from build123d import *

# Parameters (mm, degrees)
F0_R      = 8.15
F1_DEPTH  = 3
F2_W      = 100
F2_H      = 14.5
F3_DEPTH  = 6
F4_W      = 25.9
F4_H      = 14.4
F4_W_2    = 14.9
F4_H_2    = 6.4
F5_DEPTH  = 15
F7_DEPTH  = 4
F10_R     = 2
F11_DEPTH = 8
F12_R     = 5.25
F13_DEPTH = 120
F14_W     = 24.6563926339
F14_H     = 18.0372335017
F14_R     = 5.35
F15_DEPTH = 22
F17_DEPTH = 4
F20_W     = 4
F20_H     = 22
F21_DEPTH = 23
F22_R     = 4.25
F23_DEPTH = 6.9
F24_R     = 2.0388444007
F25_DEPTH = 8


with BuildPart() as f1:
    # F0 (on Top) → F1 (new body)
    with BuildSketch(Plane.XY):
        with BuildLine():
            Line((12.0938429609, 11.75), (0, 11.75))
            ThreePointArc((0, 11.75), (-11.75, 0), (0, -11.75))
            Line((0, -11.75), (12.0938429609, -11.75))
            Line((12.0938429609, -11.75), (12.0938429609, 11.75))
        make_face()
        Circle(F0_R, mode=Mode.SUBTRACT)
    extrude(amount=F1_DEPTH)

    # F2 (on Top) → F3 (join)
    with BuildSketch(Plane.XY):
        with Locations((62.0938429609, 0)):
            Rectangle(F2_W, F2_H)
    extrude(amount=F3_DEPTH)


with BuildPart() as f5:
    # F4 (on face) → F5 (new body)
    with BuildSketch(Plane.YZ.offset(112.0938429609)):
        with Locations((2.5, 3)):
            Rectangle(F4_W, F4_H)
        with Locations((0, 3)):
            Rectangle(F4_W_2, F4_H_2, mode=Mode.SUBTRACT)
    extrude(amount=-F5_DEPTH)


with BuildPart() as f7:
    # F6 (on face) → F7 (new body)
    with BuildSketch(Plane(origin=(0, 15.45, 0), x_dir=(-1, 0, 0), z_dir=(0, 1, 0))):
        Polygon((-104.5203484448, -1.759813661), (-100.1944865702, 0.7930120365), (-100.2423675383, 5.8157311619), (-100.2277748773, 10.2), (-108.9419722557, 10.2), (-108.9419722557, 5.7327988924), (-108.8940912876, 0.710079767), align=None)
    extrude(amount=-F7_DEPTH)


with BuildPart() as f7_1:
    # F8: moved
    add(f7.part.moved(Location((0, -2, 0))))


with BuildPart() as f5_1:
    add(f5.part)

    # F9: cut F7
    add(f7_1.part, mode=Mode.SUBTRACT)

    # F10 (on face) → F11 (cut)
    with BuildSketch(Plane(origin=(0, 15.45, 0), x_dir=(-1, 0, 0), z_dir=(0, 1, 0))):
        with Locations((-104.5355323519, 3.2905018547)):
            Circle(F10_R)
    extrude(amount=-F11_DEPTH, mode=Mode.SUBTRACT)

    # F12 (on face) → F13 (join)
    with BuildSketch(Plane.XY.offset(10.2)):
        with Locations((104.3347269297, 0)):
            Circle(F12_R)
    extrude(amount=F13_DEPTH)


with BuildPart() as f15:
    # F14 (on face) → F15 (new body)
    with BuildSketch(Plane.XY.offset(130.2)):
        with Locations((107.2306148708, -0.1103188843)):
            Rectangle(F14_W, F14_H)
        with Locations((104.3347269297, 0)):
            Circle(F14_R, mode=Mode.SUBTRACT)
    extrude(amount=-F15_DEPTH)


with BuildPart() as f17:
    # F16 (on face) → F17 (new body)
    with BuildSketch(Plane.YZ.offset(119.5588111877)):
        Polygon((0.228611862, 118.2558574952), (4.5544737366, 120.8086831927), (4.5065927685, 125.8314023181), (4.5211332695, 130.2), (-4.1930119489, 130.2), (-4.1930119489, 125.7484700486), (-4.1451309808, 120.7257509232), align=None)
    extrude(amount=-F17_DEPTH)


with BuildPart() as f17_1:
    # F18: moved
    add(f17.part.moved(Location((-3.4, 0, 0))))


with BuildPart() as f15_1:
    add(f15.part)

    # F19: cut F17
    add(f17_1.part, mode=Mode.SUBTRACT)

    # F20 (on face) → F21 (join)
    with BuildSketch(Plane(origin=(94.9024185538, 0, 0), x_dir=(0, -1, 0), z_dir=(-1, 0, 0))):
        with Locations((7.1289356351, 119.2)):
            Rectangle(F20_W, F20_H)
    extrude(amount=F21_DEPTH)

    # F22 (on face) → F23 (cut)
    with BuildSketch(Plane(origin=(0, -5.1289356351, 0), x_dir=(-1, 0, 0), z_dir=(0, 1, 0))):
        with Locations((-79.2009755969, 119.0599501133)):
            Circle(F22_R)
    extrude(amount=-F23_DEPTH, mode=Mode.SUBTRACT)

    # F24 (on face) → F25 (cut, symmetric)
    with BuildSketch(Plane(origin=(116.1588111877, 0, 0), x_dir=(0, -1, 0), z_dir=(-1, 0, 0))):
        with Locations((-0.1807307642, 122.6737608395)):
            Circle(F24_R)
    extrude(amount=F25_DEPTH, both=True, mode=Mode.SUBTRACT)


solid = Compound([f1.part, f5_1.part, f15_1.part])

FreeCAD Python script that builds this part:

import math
import FreeCAD as App
import Part
import Sketcher

V = App.Vector


def add_polygon(sketch, points):
    """Adds a closed chain of lines whose ends are joined by coincident constraints."""
    first, n = sketch.GeometryCount, len(points)
    for a, b in zip(points, points[1:] + points[:1]):
        sketch.addGeometry(Part.LineSegment(App.Vector(*a, 0), App.Vector(*b, 0)), False)
    for i in range(n):
        sketch.addConstraint(Sketcher.Constraint("Coincident", first + i, 2, first + (i + 1) % n, 1))

doc = App.newDocument("Part")
body = doc.addObject("PartDesign::Body", "Body")

sketch1 = body.newObject("Sketcher::SketchObject", "Sketch")
sketch1.AttachmentSupport = (doc.getObject("XY_Plane"), [""])
sketch1.MapMode = "FlatFace"
sketch1.addGeometry([
    Part.LineSegment(V(12, 12, 0), V(0, 12, 0)),
    Part.ArcOfCircle(Part.Circle(V(0, 0, 0), V(0, 0, 1), 12), math.radians(90), math.radians(270)),
    Part.LineSegment(V(0, -12, 0), V(12, -12, 0)),
    Part.LineSegment(V(12, -12, 0), V(12, 12, 0)),
    Part.Circle(V(0, 0, 0), V(0, 0, 1), 8),
], False)
sketch1.addConstraint([
    Sketcher.Constraint("Tangent", 0, 2, 1, 1),
    Sketcher.Constraint("Tangent", 1, 2, 2, 1),
    Sketcher.Constraint("Coincident", 2, 2, 3, 1),
    Sketcher.Constraint("Coincident", 3, 2, 0, 1),
    Sketcher.Constraint("Horizontal", 0),
    Sketcher.Constraint("Horizontal", 2),
    Sketcher.Constraint("Vertical", 3),
    Sketcher.Constraint("Coincident", 1, 3, -1, 1),
    Sketcher.Constraint("Coincident", 4, 3, -1, 1),
    Sketcher.Constraint("Diameter", 4, 16.3),
    Sketcher.Constraint("Radius", 1, 11.75),
    Sketcher.Constraint("DistanceX", 0, 2, 0, 1, 12.093843),
])
pad1 = body.newObject("PartDesign::Pad", "Pad")
pad1.Profile = sketch1
pad1.Length = 3

sketch2 = body.newObject("Sketcher::SketchObject", "Sketch001")
sketch2.AttachmentSupport = (doc.getObject("XY_Plane"), [""])
sketch2.MapMode = "FlatFace"
add_polygon(sketch2, [(12, 7), (12, -7), (112, -7), (112, 7)])
sketch2.addConstraint([
    Sketcher.Constraint("Vertical", 0),
    Sketcher.Constraint("Horizontal", 1),
    Sketcher.Constraint("Vertical", 2),
    Sketcher.Constraint("Horizontal", 3),
    Sketcher.Constraint("DistanceX", 1, 1, 1, 2, 100.0),
    Sketcher.Constraint("DistanceY", 0, 2, 0, 1, 14.5),
    Sketcher.Constraint("DistanceY", 0, 2, -1, 1, 7.25),
    Sketcher.Constraint("DistanceX", -1, 1, 0, 2, 12.093843),
])
pad2 = body.newObject("PartDesign::Pad", "Pad001")
pad2.Profile = sketch2
pad2.Length = 6
body2 = doc.addObject("PartDesign::Body", "Body001")

sketch3 = body2.newObject("Sketcher::SketchObject", "Sketch002")
sketch3.AttachmentSupport = (doc.getObject("YZ_Plane001"), [""])
sketch3.MapMode = "FlatFace"
sketch3.AttachmentOffset = App.Placement(V(0, 0, 112.093843), App.Rotation())
add_polygon(sketch3, [(-10, 10), (-10, -4), (15, -4), (15, 10)])
add_polygon(sketch3, [(7, 0), (-7, 0), (-7, 6), (7, 6)])
sketch3.addConstraint([
    Sketcher.Constraint("Vertical", 0),
    Sketcher.Constraint("Horizontal", 1),
    Sketcher.Constraint("Vertical", 2),
    Sketcher.Constraint("Horizontal", 3),
    Sketcher.Constraint("Horizontal", 4),
    Sketcher.Constraint("Vertical", 5),
    Sketcher.Constraint("Horizontal", 6),
    Sketcher.Constraint("Vertical", 7),
    Sketcher.Constraint("DistanceX", 1, 1, 1, 2, 25.9),
    Sketcher.Constraint("DistanceX", 4, 2, 4, 1, 14.9),
    Sketcher.Constraint("DistanceY", 0, 2, 0, 1, 14.4),
    Sketcher.Constraint("DistanceY", 5, 1, 5, 2, 6.4),
    Sketcher.Constraint("DistanceX", 0, 2, 4, 2, 3.0),
    Sketcher.Constraint("DistanceY", 0, 2, 4, 2, 4.0),
    Sketcher.Constraint("DistanceY", 0, 2, -1, 1, 4.2),
    Sketcher.Constraint("DistanceX", 0, 2, -1, 1, 10.45),
])
pad3 = body2.newObject("PartDesign::Pad", "Pad002")
pad3.Profile = sketch3
pad3.Length = 15
pad3.Reversed = True
body3 = doc.addObject("PartDesign::Body", "Body002")

sketch4 = body3.newObject("Sketcher::SketchObject", "Sketch003")
sketch4.AttachmentSupport = (doc.getObject("XZ_Plane002"), [""])
sketch4.MapMode = "FlatFace"
sketch4.AttachmentOffset = App.Placement(V(0, 0, -15.45), App.Rotation())
add_polygon(sketch4, [(104.5, -1.8), (100.2, 0.8), (100.2, 5.8), (100.2, 10.2), (108.9, 10.2), (108.9, 5.7), (108.9, 0.7)])
sketch4.addConstraint([
    Sketcher.Constraint("Horizontal", 3),
    Sketcher.Constraint("Vertical", 4),
    Sketcher.Constraint("Parallel", 1, 5),
    Sketcher.Constraint("Equal", 0, 1),
    Sketcher.Constraint("Equal", 1, 5),
    Sketcher.Constraint("Equal", 5, 6),
    Sketcher.Constraint("DistanceY", -1, 1, 2, 2, 10.2),
    Sketcher.Constraint("DistanceY", 4, 2, 4, 1, 4.467201),
    Sketcher.Constraint("DistanceX", 3, 1, 3, 2, 8.714197),
    Sketcher.Constraint("DistanceY", -1, 1, 1, 2, 5.815731),
    Sketcher.Constraint("DistanceX", -1, 1, 5, 2, 108.894091),
    Sketcher.Constraint("DistanceY", -1, 1, 5, 2, 0.71008),
    Sketcher.Constraint("DistanceX", -1, 1, 6, 2, 104.520348),
    Sketcher.Constraint("DistanceX", 0, 2, 1, 2, 0.047881),
])
pad4 = body3.newObject("PartDesign::Pad", "Pad003")
pad4.Profile = sketch4
pad4.Length = 4
body4 = doc.addObject("PartDesign::Body", "Body003")
doc.recompute()

body3.Placement = App.Placement(V(0, -2, 0), App.Rotation(V(0, 0, 1), 0))
boolean = body4.newObject("PartDesign::Boolean", "Boolean")
boolean.Type = "Fuse"
boolean.addObjects([body3])
doc.recompute()

boolean2 = body2.newObject("PartDesign::Boolean", "Boolean001")
boolean2.Type = "Cut"
boolean2.addObjects([body4])

sketch5 = body2.newObject("Sketcher::SketchObject", "Sketch004")
sketch5.AttachmentSupport = (doc.getObject("XZ_Plane001"), [""])
sketch5.MapMode = "FlatFace"
sketch5.AttachmentOffset = App.Placement(V(0, 0, -15.45), App.Rotation())
sketch5.addGeometry(Part.Circle(V(104.5, 3.3, 0), V(0, 0, 1), 2), False)
sketch5.addConstraint([
    Sketcher.Constraint("Diameter", 0, 4.0),
    Sketcher.Constraint("DistanceY", -1, 1, 0, 3, 3.290502),
    Sketcher.Constraint("DistanceX", -1, 1, 0, 3, 104.535532),
])
pocket1 = body2.newObject("PartDesign::Pocket", "Pocket")
pocket1.Profile = sketch5
pocket1.Length = 8
pocket1.Reversed = True

sketch6 = body2.newObject("Sketcher::SketchObject", "Sketch005")
sketch6.AttachmentSupport = (doc.getObject("XY_Plane001"), [""])
sketch6.MapMode = "FlatFace"
sketch6.AttachmentOffset = App.Placement(V(0, 0, 10.2), App.Rotation())
sketch6.addGeometry(Part.Circle(V(104, 0, 0), V(0, 0, 1), 5), False)
sketch6.addConstraint([
    Sketcher.Constraint("PointOnObject", 0, 3, -1),
    Sketcher.Constraint("Diameter", 0, 10.5),
    Sketcher.Constraint("DistanceX", -1, 1, 0, 3, 104.334727),
])
pad5 = body2.newObject("PartDesign::Pad", "Pad004")
pad5.Profile = sketch6
pad5.Length = 120
body5 = doc.addObject("PartDesign::Body", "Body004")

sketch7 = body5.newObject("Sketcher::SketchObject", "Sketch006")
sketch7.AttachmentSupport = (doc.getObject("XY_Plane004"), [""])
sketch7.MapMode = "FlatFace"
sketch7.AttachmentOffset = App.Placement(V(0, 0, 130.2), App.Rotation())
add_polygon(sketch7, [(95, 9), (95, -9), (120, -9), (120, 9)])
sketch7.addGeometry(Part.Circle(V(104, 0, 0), V(0, 0, 1), 5), False)
sketch7.addConstraint([
    Sketcher.Constraint("Vertical", 0),
    Sketcher.Constraint("Horizontal", 1),
    Sketcher.Constraint("Vertical", 2),
    Sketcher.Constraint("Horizontal", 3),
    Sketcher.Constraint("PointOnObject", 4, 3, -1),
    Sketcher.Constraint("Diameter", 4, 10.7),
    Sketcher.Constraint("DistanceX", 1, 1, 1, 2, 24.656393),
    Sketcher.Constraint("DistanceY", 0, 2, 0, 1, 18.037234),
    Sketcher.Constraint("DistanceX", -1, 1, 0, 2, 94.902419),
    Sketcher.Constraint("DistanceX", 0, 2, 4, 3, 9.432308),
    Sketcher.Constraint("DistanceY", 0, 2, -1, 1, 9.128936),
])
pad6 = body5.newObject("PartDesign::Pad", "Pad005")
pad6.Profile = sketch7
pad6.Length = 22
pad6.Reversed = True
body6 = doc.addObject("PartDesign::Body", "Body005")

sketch8 = body6.newObject("Sketcher::SketchObject", "Sketch007")
sketch8.AttachmentSupport = (doc.getObject("YZ_Plane005"), [""])
sketch8.MapMode = "FlatFace"
sketch8.AttachmentOffset = App.Placement(V(0, 0, 119.558811), App.Rotation())
add_polygon(sketch8, [(0.2, 118.3), (4.6, 120.8), (4.5, 125.8), (4.5, 130.2), (-4.2, 130.2), (-4.2, 125.7), (-4.1, 120.7)])
sketch8.addConstraint([
    Sketcher.Constraint("Horizontal", 3),
    Sketcher.Constraint("Vertical", 4),
    Sketcher.Constraint("Parallel", 1, 5),
    Sketcher.Constraint("Equal", 0, 1),
    Sketcher.Constraint("Equal", 1, 5),
    Sketcher.Constraint("Equal", 5, 6),
    Sketcher.Constraint("DistanceY", -1, 1, 2, 2, 130.2),
    Sketcher.Constraint("DistanceY", 4, 2, 4, 1, 4.45153),
    Sketcher.Constraint("Distance", 2, 4.368622),
    Sketcher.Constraint("DistanceX", 3, 2, 3, 1, 8.714145),
    Sketcher.Constraint("DistanceX", 3, 2, -1, 1, 4.193012),
    Sketcher.Constraint("DistanceX", 5, 2, -1, 1, 4.145131),
    Sketcher.Constraint("DistanceY", -1, 1, 5, 2, 120.725751),
    Sketcher.Constraint("DistanceX", -1, 1, 6, 2, 0.228612),
])
pad7 = body6.newObject("PartDesign::Pad", "Pad006")
pad7.Profile = sketch8
pad7.Length = 4
pad7.Reversed = True
body7 = doc.addObject("PartDesign::Body", "Body006")
doc.recompute()

body6.Placement = App.Placement(V(-3.4, 0, 0), App.Rotation(V(0, 0, 1), 0))
boolean3 = body7.newObject("PartDesign::Boolean", "Boolean002")
boolean3.Type = "Fuse"
boolean3.addObjects([body6])
doc.recompute()

boolean4 = body5.newObject("PartDesign::Boolean", "Boolean003")
boolean4.Type = "Cut"
boolean4.addObjects([body7])

sketch9 = body5.newObject("Sketcher::SketchObject", "Sketch008")
sketch9.AttachmentSupport = (doc.getObject("YZ_Plane004"), [""])
sketch9.MapMode = "FlatFace"
sketch9.AttachmentOffset = App.Placement(V(0, 0, 94.902419), App.Rotation())
add_polygon(sketch9, [(-5.1, 130.2), (-5.1, 108.2), (-9.1, 108.2), (-9.1, 130.2)])
sketch9.addConstraint([
    Sketcher.Constraint("Vertical", 0),
    Sketcher.Constraint("Horizontal", 1),
    Sketcher.Constraint("Vertical", 2),
    Sketcher.Constraint("Horizontal", 3),
    Sketcher.Constraint("DistanceX", 1, 2, 1, 1, 4.0),
    Sketcher.Constraint("DistanceY", 0, 2, 0, 1, 22.0),
    Sketcher.Constraint("DistanceY", -1, 1, 0, 2, 108.2),
    Sketcher.Constraint("DistanceX", 0, 2, -1, 1, 5.128936),
])
pad8 = body5.newObject("PartDesign::Pad", "Pad007")
pad8.Profile = sketch9
pad8.Length = 23
pad8.Reversed = True

sketch10 = body5.newObject("Sketcher::SketchObject", "Sketch009")
sketch10.AttachmentSupport = (doc.getObject("XZ_Plane004"), [""])
sketch10.MapMode = "FlatFace"
sketch10.AttachmentOffset = App.Placement(V(0, 0, 5.128936), App.Rotation())
sketch10.addGeometry(Part.Circle(V(79.2, 119.1, 0), V(0, 0, 1), 4.2), False)
sketch10.addConstraint([
    Sketcher.Constraint("Diameter", 0, 8.5),
    Sketcher.Constraint("DistanceY", -1, 1, 0, 3, 119.05995),
    Sketcher.Constraint("DistanceX", -1, 1, 0, 3, 79.200976),
])
pocket2 = body5.newObject("PartDesign::Pocket", "Pocket001")
pocket2.Profile = sketch10
pocket2.Length = 6.9
pocket2.Reversed = True

sketch11 = body5.newObject("Sketcher::SketchObject", "Sketch010")
sketch11.AttachmentSupport = (doc.getObject("YZ_Plane004"), [""])
sketch11.MapMode = "FlatFace"
sketch11.AttachmentOffset = App.Placement(V(0, 0, 116.158811), App.Rotation())
sketch11.addGeometry(Part.Circle(V(0.2, 122.7, 0), V(0, 0, 1), 2), False)
sketch11.addConstraint([
    Sketcher.Constraint("Diameter", 0, 4.077689),
    Sketcher.Constraint("DistanceX", -1, 1, 0, 3, 0.180731),
    Sketcher.Constraint("DistanceY", -1, 1, 0, 3, 122.673761),
])
pocket3 = body5.newObject("PartDesign::Pocket", "Pocket002")
pocket3.Profile = sketch11
pocket3.Length = 16
pocket3.Midplane = True

doc.recompute()
